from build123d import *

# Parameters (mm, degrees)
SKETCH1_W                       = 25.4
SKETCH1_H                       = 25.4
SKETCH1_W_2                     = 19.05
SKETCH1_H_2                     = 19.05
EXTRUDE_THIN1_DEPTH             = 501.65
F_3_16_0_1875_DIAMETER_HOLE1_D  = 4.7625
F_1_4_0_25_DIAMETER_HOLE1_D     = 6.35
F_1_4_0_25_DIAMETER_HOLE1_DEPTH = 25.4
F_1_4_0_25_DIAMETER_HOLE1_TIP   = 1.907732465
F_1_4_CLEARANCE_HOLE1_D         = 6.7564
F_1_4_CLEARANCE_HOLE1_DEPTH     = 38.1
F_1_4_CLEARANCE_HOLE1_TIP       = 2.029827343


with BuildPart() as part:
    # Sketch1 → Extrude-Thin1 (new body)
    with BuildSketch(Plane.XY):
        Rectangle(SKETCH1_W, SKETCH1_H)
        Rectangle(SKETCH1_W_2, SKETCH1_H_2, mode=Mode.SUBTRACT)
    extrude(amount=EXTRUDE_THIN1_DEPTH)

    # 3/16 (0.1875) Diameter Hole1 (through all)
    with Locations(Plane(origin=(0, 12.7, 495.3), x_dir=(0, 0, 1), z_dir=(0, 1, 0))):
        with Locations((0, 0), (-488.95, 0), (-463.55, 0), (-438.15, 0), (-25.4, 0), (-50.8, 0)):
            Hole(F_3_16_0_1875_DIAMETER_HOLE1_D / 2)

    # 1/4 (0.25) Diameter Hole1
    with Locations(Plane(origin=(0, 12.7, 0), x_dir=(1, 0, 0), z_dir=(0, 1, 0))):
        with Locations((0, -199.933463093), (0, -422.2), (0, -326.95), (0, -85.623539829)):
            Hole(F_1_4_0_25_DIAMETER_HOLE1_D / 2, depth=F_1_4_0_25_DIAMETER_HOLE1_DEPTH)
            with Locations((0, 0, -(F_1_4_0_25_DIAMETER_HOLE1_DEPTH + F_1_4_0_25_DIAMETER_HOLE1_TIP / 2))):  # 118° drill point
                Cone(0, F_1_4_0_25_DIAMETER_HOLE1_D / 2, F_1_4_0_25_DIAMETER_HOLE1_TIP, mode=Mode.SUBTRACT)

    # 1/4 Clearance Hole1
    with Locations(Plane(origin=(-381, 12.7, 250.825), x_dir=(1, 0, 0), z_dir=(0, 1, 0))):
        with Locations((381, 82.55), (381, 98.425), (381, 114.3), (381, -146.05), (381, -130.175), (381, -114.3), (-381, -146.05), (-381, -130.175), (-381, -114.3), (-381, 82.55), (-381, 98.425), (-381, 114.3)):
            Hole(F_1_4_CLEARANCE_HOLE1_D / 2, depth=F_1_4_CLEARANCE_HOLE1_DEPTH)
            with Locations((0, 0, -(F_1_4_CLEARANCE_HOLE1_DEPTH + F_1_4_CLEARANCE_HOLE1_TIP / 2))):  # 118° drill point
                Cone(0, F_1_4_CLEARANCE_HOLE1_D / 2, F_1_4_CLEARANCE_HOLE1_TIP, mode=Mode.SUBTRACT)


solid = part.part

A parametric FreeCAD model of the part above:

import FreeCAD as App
import Part
import Sketcher
Q = App.Units.Quantity

doc = App.newDocument("Part")
body = doc.addObject("PartDesign::Body", "Body")

# Sketch on XY plane
sketch1 = body.newObject("Sketcher::SketchObject", "Sketch")
sketch1.AttachmentSupport = (doc.getObject("XY_Plane"), [""])
sketch1.MapMode = "FlatFace"
sketch1.addGeometry(Part.LineSegment(App.Vector(-13, 13, 0), App.Vector(-13, -13, 0)), False)
sketch1.addGeometry(Part.LineSegment(App.Vector(-13, -13, 0), App.Vector(13, -13, 0)), False)
sketch1.addGeometry(Part.LineSegment(App.Vector(13, -13, 0), App.Vector(13, 13, 0)), False)
sketch1.addGeometry(Part.LineSegment(App.Vector(13, 13, 0), App.Vector(-13, 13, 0)), False)
sketch1.addGeometry(Part.LineSegment(App.Vector(10, -10, 0), App.Vector(-10, -10, 0)), False)
sketch1.addGeometry(Part.LineSegment(App.Vector(-10, -10, 0), App.Vector(-10, 10, 0)), False)
sketch1.addGeometry(Part.LineSegment(App.Vector(-10, 10, 0), App.Vector(10, 10, 0)), False)
sketch1.addGeometry(Part.LineSegment(App.Vector(10, 10, 0), App.Vector(10, -10, 0)), False)
sketch1.addConstraint(Sketcher.Constraint("Coincident", 0, 2, 1, 1))
sketch1.addConstraint(Sketcher.Constraint("Coincident", 1, 2, 2, 1))
sketch1.addConstraint(Sketcher.Constraint("Coincident", 2, 2, 3, 1))
sketch1.addConstraint(Sketcher.Constraint("Coincident", 3, 2, 0, 1))
sketch1.addConstraint(Sketcher.Constraint("Coincident", 4, 2, 5, 1))
sketch1.addConstraint(Sketcher.Constraint("Coincident", 5, 2, 6, 1))
sketch1.addConstraint(Sketcher.Constraint("Coincident", 6, 2, 7, 1))
sketch1.addConstraint(Sketcher.Constraint("Coincident", 7, 2, 4, 1))
sketch1.addConstraint(Sketcher.Constraint("Vertical", 0))
sketch1.addConstraint(Sketcher.Constraint("Horizontal", 1))
sketch1.addConstraint(Sketcher.Constraint("Vertical", 2))
sketch1.addConstraint(Sketcher.Constraint("Horizontal", 3))
sketch1.addConstraint(Sketcher.Constraint("Horizontal", 4))
sketch1.addConstraint(Sketcher.Constraint("Vertical", 5))
sketch1.addConstraint(Sketcher.Constraint("Horizontal", 6))
sketch1.addConstraint(Sketcher.Constraint("Vertical", 7))
sketch1.addConstraint(Sketcher.Constraint("Symmetric", 0, 2, 2, 2, -1, 1))
sketch1.addConstraint(Sketcher.Constraint("Symmetric", 4, 2, 6, 2, -1, 1))
sketch1.addConstraint(Sketcher.Constraint("Equal", 3, 0))
sketch1.addConstraint(Sketcher.Constraint("Equal", 6, 5))
sketch1.addConstraint(Sketcher.Constraint("DistanceX", 1, 1, 1, 2, Q("1 in")))
sketch1.addConstraint(Sketcher.Constraint("DistanceX", 4, 2, 4, 1, Q("0.75 in")))
pad1 = body.newObject("PartDesign::Pad", "Pad")
pad1.Profile = sketch1
pad1.Length = Q("19.75 in")

# Sketch on XZ plane
sketch2 = body.newObject("Sketcher::SketchObject", "Sketch001")
sketch2.AttachmentSupport = (doc.getObject("XZ_Plane"), [""])
sketch2.MapMode = "FlatFace"
sketch2.AttachmentOffset = App.Placement(App.Vector(0, 0, -0.5 * 25.4), App.Rotation())
sketch2.addGeometry(Part.Circle(App.Vector(0, 495.3, 0), App.Vector(0, 0, 1), 2.4), False)
sketch2.addGeometry(Part.Circle(App.Vector(0, 6.3, 0), App.Vector(0, 0, 1), 2.4), False)
sketch2.addGeometry(Part.Circle(App.Vector(0, 31.8, 0), App.Vector(0, 0, 1), 2.4), False)
sketch2.addGeometry(Part.Circle(App.Vector(0, 57.1, 0), App.Vector(0, 0, 1), 2.4), False)
sketch2.addGeometry(Part.Circle(App.Vector(0, 469.9, 0), App.Vector(0, 0, 1), 2.4), False)
sketch2.addGeometry(Part.Circle(App.Vector(0, 444.5, 0), App.Vector(0, 0, 1), 2.4), False)
sketch2.addConstraint(Sketcher.Constraint("Equal", 0, 1))
sketch2.addConstraint(Sketcher.Constraint("Equal", 1, 2))
sketch2.addConstraint(Sketcher.Constraint("Equal", 2, 3))
sketch2.addConstraint(Sketcher.Constraint("Equal", 3, 4))
sketch2.addConstraint(Sketcher.Constraint("Equal", 4, 5))
sketch2.addConstraint(Sketcher.Constraint("PointOnObject", 0, 3, -2))
sketch2.addConstraint(Sketcher.Constraint("PointOnObject", 1, 3, -2))
sketch2.addConstraint(Sketcher.Constraint("PointOnObject", 2, 3, -2))
sketch2.addConstraint(Sketcher.Constraint("PointOnObject", 3, 3, -2))
sketch2.addConstraint(Sketcher.Constraint("PointOnObject", 4, 3, -2))
sketch2.addConstraint(Sketcher.Constraint("PointOnObject", 5, 3, -2))
sketch2.addConstraint(Sketcher.Constraint("Diameter", 0, Q("0.1875 in")))
sketch2.addConstraint(Sketcher.Constraint("DistanceY", 1, 3, 2, 3, Q("1 in")))
sketch2.addConstraint(Sketcher.Constraint("DistanceY", 2, 3, 3, 3, Q("1 in")))
sketch2.addConstraint(Sketcher.Constraint("DistanceY", 4, 3, 0, 3, Q("1 in")))
sketch2.addConstraint(Sketcher.Constraint("DistanceY", 5, 3, 4, 3, Q("1 in")))
sketch2.addConstraint(Sketcher.Constraint("DistanceY", -1, 1, 0, 3, Q("19.5 in")))
sketch2.addConstraint(Sketcher.Constraint("DistanceY", -1, 1, 1, 3, Q("0.25 in")))
doc.recompute()
hole = body.newObject("PartDesign::Hole", "Hole")
hole.Profile = sketch2
hole.ThreadType = "None"
hole.Diameter = Q("0.1875 in")
hole.DepthType = "ThroughAll"
hole.Reversed = True

# Sketch on XZ plane
sketch3 = body.newObject("Sketcher::SketchObject", "Sketch002")
sketch3.AttachmentSupport = (doc.getObject("XZ_Plane"), [""])
sketch3.MapMode = "FlatFace"
sketch3.AttachmentOffset = App.Placement(App.Vector(0, 0, -0.5 * 25.4), App.Rotation())
sketch3.addGeometry(Part.Circle(App.Vector(0, 199.9, 0), App.Vector(0, 0, 1), 3.2), False)
sketch3.addGeometry(Part.Circle(App.Vector(0, 422.2, 0), App.Vector(0, 0, 1), 3.2), False)
sketch3.addGeometry(Part.Circle(App.Vector(0, 326.9, 0), App.Vector(0, 0, 1), 3.2), False)
sketch3.addGeometry(Part.Circle(App.Vector(0, 85.6, 0), App.Vector(0, 0, 1), 3.2), False)
sketch3.addConstraint(Sketcher.Constraint("Equal", 0, 1))
sketch3.addConstraint(Sketcher.Constraint("Equal", 1, 2))
sketch3.addConstraint(Sketcher.Constraint("Equal", 2, 3))
sketch3.addConstraint(Sketcher.Constraint("PointOnObject", 0, 3, -2))
sketch3.addConstraint(Sketcher.Constraint("PointOnObject", 1, 3, -2))
sketch3.addConstraint(Sketcher.Constraint("PointOnObject", 2, 3, -2))
sketch3.addConstraint(Sketcher.Constraint("PointOnObject", 3, 3, -2))
sketch3.addConstraint(Sketcher.Constraint("Diameter", 0, Q("0.25 in")))
sketch3.addConstraint(Sketcher.Constraint("DistanceY", 2, 3, 1, 3, Q("3.75 in")))
sketch3.addConstraint(Sketcher.Constraint("DistanceY", -1, 1, 1, 3, Q("422.2 mm")))
sketch3.addConstraint(Sketcher.Constraint("DistanceY", -1, 1, 3, 3, Q("85.62354 mm")))
sketch3.addConstraint(Sketcher.Constraint("DistanceY", -1, 1, 0, 3, Q("199.933463 mm")))
doc.recompute()
hole2 = body.newObject("PartDesign::Hole", "Hole001")
hole2.Profile = sketch3
hole2.ThreadType = "None"
hole2.Diameter = Q("0.25 in")
hole2.DepthType = "Dimension"
hole2.Depth = Q("1 in")
hole2.DrillPoint = "Angled"
hole2.DrillPointAngle = 118
hole2.Reversed = True

# Sketch on XZ plane
sketch4 = body.newObject("Sketcher::SketchObject", "Sketch003")
sketch4.AttachmentSupport = (doc.getObject("XZ_Plane"), [""])
sketch4.MapMode = "FlatFace"
sketch4.AttachmentOffset = App.Placement(App.Vector(0, 0, -0.5 * 25.4), App.Rotation())
sketch4.addGeometry(Part.Circle(App.Vector(0, 168.3, 0), App.Vector(0, 0, 1), 3.4), False)
sketch4.addGeometry(Part.Circle(App.Vector(0, 152.4, 0), App.Vector(0, 0, 1), 3.4), False)
sketch4.addGeometry(Part.Circle(App.Vector(0, 136.5, 0), App.Vector(0, 0, 1), 3.4), False)
sketch4.addGeometry(Part.Circle(App.Vector(0, 396.9, 0), App.Vector(0, 0, 1), 3.4), False)
sketch4.addGeometry(Part.Circle(App.Vector(0, 381, 0), App.Vector(0, 0, 1), 3.4), False)
sketch4.addGeometry(Part.Circle(App.Vector(0, 365.1, 0), App.Vector(0, 0, 1), 3.4), False)
sketch4.addGeometry(Part.Circle(App.Vector(-762, 396.9, 0), App.Vector(0, 0, 1), 3.4), False)
sketch4.addGeometry(Part.Circle(App.Vector(-762, 381, 0), App.Vector(0, 0, 1), 3.4), False)
sketch4.addGeometry(Part.Circle(App.Vector(-762, 365.1, 0), App.Vector(0, 0, 1), 3.4), False)
sketch4.addGeometry(Part.Circle(App.Vector(-762, 168.3, 0), App.Vector(0, 0, 1), 3.4), False)
sketch4.addGeometry(Part.Circle(App.Vector(-762, 152.4, 0), App.Vector(0, 0, 1), 3.4), False)
sketch4.addGeometry(Part.Circle(App.Vector(-762, 136.5, 0), App.Vector(0, 0, 1), 3.4), False)
sketch4.addConstraint(Sketcher.Constraint("Equal", 0, 1))
sketch4.addConstraint(Sketcher.Constraint("Equal", 1, 2))
sketch4.addConstraint(Sketcher.Constraint("Equal", 2, 3))
sketch4.addConstraint(Sketcher.Constraint("Equal", 3, 4))
sketch4.addConstraint(Sketcher.Constraint("Equal", 4, 5))
sketch4.addConstraint(Sketcher.Constraint("Equal", 5, 6))
sketch4.addConstraint(Sketcher.Constraint("Equal", 6, 7))
sketch4.addConstraint(Sketcher.Constraint("Equal", 7, 8))
sketch4.addConstraint(Sketcher.Constraint("Equal", 8, 9))
sketch4.addConstraint(Sketcher.Constraint("Equal", 9, 10))
sketch4.addConstraint(Sketcher.Constraint("Equal", 10, 11))
sketch4.addConstraint(Sketcher.Constraint("PointOnObject", 0, 3, -2))
sketch4.addConstraint(Sketcher.Constraint("PointOnObject", 1, 3, -2))
sketch4.addConstraint(Sketcher.Constraint("PointOnObject", 2, 3, -2))
sketch4.addConstraint(Sketcher.Constraint("PointOnObject", 3, 3, -2))
sketch4.addConstraint(Sketcher.Constraint("PointOnObject", 4, 3, -2))
sketch4.addConstraint(Sketcher.Constraint("PointOnObject", 5, 3, -2))
sketch4.addConstraint(Sketcher.Constraint("Horizontal", 3, 3, 6, 3))
sketch4.addConstraint(Sketcher.Constraint("Horizontal", 4, 3, 7, 3))
sketch4.addConstraint(Sketcher.Constraint("Horizontal", 5, 3, 8, 3))
sketch4.addConstraint(Sketcher.Constraint("Horizontal", 0, 3, 9, 3))
sketch4.addConstraint(Sketcher.Constraint("Horizontal", 1, 3, 10, 3))
sketch4.addConstraint(Sketcher.Constraint("Horizontal", 2, 3, 11, 3))
sketch4.addConstraint(Sketcher.Constraint("Vertical", 6, 3, 7, 3))
sketch4.addConstraint(Sketcher.Constraint("Vertical", 7, 3, 8, 3))
sketch4.addConstraint(Sketcher.Constraint("Vertical", 8, 3, 9, 3))
sketch4.addConstraint(Sketcher.Constraint("Vertical", 9, 3, 10, 3))
sketch4.addConstraint(Sketcher.Constraint("Vertical", 10, 3, 11, 3))
sketch4.addConstraint(Sketcher.Constraint("Diameter", 0, Q("0.266 in")))
sketch4.addConstraint(Sketcher.Constraint("DistanceY", -1, 1, 1, 3, Q("6 in")))
sketch4.addConstraint(Sketcher.Constraint("DistanceY", -1, 1, 4, 3, Q("15 in")))
sketch4.addConstraint(Sketcher.Constraint("DistanceX", 6, 3, -1, 1, Q("30 in")))
sketch4.addConstraint(Sketcher.Constraint("DistanceY", 0, 3, 3, 3, Q("9 in")))
sketch4.addConstraint(Sketcher.Constraint("DistanceY", 2, 3, 5, 3, Q("9 in")))
sketch4.addConstraint(Sketcher.Constraint("DistanceY", 2, 3, 0, 3, Q("1.25 in")))
sketch4.addConstraint(Sketcher.Constraint("DistanceY", -1, 1, 0, 3, Q("6.625 in")))
doc.recompute()
hole3 = body.newObject("PartDesign::Hole", "Hole002")
hole3.Profile = sketch4
hole3.ThreadType = "None"
hole3.Diameter = Q("0.266 in")
hole3.DepthType = "Dimension"
hole3.Depth = Q("1.5 in")
hole3.DrillPoint = "Angled"
hole3.DrillPointAngle = 118
hole3.Reversed = True

doc.recompute()
